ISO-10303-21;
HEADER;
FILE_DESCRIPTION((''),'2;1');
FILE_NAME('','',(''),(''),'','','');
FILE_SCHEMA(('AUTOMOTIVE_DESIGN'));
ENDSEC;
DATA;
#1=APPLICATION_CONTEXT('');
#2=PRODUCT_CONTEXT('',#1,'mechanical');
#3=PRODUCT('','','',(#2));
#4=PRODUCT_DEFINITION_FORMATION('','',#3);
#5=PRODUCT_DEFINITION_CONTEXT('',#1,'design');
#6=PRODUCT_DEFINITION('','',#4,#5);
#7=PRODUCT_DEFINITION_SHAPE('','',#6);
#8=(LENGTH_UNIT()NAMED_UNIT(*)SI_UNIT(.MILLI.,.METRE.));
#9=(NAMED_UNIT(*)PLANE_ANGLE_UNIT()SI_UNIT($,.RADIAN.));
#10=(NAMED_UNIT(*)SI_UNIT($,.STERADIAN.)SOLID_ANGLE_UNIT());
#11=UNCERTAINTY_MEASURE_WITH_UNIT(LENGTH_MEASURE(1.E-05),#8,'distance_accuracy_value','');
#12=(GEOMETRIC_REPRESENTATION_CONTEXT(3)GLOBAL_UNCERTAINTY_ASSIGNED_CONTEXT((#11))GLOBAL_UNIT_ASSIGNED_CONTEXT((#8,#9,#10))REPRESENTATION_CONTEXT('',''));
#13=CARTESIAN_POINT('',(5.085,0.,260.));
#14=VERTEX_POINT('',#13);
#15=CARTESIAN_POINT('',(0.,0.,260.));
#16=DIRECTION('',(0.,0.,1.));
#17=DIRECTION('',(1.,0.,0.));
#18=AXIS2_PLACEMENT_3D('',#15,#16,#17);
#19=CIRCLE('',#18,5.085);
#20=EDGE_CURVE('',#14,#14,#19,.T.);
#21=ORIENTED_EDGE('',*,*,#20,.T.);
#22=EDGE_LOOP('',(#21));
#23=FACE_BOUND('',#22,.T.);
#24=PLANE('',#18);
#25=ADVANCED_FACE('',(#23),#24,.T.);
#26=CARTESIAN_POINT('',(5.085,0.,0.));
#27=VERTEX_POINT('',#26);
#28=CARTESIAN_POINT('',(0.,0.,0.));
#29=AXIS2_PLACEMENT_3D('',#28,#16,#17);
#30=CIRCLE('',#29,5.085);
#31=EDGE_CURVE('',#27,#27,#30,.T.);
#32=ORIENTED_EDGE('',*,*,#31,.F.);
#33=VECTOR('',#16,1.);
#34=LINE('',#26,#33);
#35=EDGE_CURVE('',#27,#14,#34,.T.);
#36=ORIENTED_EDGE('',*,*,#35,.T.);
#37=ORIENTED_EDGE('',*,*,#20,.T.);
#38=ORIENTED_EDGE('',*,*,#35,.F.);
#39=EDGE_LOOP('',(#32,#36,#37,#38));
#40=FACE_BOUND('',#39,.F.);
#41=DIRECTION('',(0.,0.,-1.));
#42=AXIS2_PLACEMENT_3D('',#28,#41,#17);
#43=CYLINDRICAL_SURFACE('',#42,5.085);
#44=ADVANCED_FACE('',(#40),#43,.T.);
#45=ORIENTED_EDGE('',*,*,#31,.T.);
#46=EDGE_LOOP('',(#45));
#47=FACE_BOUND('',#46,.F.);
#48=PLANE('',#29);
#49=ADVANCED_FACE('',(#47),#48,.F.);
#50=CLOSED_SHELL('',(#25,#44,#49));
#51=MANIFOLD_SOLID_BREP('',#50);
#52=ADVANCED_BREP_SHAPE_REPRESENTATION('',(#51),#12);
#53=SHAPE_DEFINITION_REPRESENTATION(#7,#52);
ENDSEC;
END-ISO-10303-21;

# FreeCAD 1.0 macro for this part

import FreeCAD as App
import Part
import Sketcher
from FreeCAD import Vector

doc = App.newDocument("Part")
params = doc.addObject("Spreadsheet::Sheet", "Params")
for row, (alias, value) in enumerate([
    ("sketch1_diameter", "10.17 mm"),
    ("pad1_length", "260 mm"),
], start=1):
    params.set(f"A{row}", alias)
    params.set(f"B{row}", "=" + value)
    params.setAlias(f"B{row}", alias)

body = doc.addObject("PartDesign::Body", "Body")

# Sketch on XY plane
sketch1 = doc.addObject("Sketcher::SketchObject", "Sketch")
body.addObject(sketch1)
sketch1.AttachmentSupport = (doc.XY_Plane, [""])
sketch1.MapMode = "FlatFace"
sketch1.addGeometry(Part.Circle(Vector(0, 0, 0), Vector(0, 0, 1), 5), False)
sketch1.addConstraint(Sketcher.Constraint("Coincident", 0, 3, -1, 1))
sketch1.addConstraint(Sketcher.Constraint("Diameter", 0, 10.17))
sketch1.setExpression("Constraints[1]", "Params.sketch1_diameter")
pad1 = doc.addObject("PartDesign::Pad", "Pad")
body.addObject(pad1)
pad1.Profile = sketch1
pad1.setExpression("Length", "Params.pad1_length")

doc.recompute()
